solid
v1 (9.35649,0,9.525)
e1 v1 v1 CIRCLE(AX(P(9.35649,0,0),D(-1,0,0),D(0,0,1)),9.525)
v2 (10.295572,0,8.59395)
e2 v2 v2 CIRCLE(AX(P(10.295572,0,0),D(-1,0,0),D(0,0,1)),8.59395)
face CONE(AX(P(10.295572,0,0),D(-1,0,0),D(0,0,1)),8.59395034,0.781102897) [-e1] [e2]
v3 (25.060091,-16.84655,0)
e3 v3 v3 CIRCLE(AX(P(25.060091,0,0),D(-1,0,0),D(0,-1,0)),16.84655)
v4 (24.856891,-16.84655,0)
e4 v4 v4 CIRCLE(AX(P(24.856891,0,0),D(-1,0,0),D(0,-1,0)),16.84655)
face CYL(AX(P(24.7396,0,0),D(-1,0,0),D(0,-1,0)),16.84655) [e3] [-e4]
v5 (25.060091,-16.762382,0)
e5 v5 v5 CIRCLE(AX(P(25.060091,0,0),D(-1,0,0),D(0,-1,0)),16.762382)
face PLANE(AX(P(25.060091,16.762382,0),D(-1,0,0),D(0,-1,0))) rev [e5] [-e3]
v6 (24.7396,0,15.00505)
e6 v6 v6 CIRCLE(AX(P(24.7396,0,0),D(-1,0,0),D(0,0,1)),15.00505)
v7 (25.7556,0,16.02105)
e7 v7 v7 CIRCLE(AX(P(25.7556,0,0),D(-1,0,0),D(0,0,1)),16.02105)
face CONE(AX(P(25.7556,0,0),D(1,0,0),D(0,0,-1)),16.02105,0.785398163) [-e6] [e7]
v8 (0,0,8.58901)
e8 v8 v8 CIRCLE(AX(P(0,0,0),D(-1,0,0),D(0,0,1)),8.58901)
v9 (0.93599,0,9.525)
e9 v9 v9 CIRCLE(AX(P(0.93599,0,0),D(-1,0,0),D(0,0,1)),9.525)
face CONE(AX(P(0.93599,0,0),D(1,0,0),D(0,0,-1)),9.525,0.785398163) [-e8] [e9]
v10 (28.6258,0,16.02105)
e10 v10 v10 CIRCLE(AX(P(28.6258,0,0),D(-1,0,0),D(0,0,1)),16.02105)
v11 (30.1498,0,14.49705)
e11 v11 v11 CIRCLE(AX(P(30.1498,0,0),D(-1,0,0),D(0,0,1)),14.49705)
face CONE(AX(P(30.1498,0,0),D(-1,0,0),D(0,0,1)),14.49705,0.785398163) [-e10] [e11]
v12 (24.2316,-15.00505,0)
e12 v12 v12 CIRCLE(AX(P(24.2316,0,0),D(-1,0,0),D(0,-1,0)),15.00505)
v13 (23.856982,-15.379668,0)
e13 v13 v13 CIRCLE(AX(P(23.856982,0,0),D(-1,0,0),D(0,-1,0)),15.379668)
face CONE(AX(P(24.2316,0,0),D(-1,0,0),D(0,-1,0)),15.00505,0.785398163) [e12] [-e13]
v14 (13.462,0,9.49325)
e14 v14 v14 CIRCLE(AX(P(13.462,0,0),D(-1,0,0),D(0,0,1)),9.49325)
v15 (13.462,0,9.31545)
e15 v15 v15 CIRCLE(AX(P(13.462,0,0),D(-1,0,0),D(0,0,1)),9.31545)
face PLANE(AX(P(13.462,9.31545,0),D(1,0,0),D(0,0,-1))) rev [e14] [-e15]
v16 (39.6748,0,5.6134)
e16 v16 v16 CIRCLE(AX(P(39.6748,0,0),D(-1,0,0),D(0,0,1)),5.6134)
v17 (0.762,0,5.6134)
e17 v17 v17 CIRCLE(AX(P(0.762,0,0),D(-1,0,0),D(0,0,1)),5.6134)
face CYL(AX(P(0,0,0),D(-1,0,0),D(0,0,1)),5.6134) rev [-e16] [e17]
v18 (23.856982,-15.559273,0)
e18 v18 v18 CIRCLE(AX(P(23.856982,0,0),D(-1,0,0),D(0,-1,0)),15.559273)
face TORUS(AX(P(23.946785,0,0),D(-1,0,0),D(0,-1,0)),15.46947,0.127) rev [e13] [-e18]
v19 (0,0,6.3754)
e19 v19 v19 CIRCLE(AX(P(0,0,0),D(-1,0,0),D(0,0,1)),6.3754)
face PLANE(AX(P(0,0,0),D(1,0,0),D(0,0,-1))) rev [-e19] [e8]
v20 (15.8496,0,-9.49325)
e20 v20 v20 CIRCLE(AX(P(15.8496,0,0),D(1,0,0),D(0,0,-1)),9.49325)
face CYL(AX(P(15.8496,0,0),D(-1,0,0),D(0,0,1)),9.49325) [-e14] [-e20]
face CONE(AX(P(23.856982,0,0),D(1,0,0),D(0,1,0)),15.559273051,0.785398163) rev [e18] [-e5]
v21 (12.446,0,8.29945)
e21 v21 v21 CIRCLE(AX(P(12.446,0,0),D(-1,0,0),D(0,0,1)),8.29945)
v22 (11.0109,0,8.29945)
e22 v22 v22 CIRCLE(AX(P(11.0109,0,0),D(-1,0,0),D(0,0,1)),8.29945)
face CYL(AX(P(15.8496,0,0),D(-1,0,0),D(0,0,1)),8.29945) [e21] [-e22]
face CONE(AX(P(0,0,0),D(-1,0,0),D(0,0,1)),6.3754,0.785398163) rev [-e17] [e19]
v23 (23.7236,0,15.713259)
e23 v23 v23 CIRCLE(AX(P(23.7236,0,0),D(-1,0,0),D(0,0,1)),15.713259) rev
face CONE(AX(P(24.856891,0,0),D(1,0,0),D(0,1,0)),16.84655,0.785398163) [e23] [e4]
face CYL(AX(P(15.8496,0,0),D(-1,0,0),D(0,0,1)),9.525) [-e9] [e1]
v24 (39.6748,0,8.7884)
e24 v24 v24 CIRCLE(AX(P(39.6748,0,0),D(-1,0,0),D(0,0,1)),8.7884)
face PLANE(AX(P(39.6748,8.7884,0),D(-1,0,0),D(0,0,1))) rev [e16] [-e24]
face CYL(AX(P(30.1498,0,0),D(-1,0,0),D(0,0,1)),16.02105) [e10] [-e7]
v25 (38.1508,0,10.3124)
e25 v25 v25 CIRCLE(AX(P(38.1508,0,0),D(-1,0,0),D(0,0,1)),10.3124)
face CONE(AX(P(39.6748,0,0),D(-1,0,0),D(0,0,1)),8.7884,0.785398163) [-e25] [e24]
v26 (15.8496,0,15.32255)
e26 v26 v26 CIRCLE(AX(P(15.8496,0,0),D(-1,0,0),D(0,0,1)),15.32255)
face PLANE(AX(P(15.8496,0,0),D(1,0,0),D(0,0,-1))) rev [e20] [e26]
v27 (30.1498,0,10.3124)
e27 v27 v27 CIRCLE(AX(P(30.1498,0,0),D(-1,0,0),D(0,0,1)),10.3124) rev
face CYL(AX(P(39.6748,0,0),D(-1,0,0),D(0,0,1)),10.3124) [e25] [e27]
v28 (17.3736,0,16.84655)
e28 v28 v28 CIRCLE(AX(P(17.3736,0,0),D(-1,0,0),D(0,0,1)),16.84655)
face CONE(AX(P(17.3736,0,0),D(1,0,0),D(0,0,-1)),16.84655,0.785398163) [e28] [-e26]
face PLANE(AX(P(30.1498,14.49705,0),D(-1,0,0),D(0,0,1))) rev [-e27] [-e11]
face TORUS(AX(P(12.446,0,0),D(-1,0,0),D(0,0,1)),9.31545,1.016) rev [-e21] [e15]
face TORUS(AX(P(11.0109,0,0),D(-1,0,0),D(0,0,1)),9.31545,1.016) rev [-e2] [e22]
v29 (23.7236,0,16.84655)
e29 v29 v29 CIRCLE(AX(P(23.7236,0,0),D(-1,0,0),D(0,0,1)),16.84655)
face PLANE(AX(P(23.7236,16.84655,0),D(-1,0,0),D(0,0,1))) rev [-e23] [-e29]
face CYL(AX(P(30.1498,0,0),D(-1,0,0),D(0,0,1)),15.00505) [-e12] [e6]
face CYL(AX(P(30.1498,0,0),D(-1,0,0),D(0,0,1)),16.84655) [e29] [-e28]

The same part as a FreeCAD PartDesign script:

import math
import FreeCAD as App
import Part
import Sketcher
Q = App.Units.Quantity

doc = App.newDocument("Part")
params = doc.addObject("Spreadsheet::Sheet", "Params")
for row, (alias, value) in enumerate([
    ("sketch1_radius", "0.04 in"),
    ("sketch1_width", "0.624 in"),
    ("sketch1_width2", "0.094 in"),
    ("sketch1_height", "0.007 in"),
    ("revolution_angle", "360 deg"),
    ("sketch2_width", "0.04 in"),
    ("sketch2_width2", "0.25 in"),
    ("sketch2_width3", "0.563 in"),
    ("sketch2_width4", "0.113 in"),
    ("revolution2_angle", "360 deg"),
    ("sketch3_width", "0.375 in"),
    ("sketch3_width2", "0.315 in"),
    ("sketch3_height", "0.406 in"),
    ("revolution3_angle", "360 deg"),
    ("sketch4_diameter", "0.442 in"),
    ("hole_diameter", "0.442 in"),
    ("hole_depth", "1.562 in"),
    ("hole_csink_diameter", "0.502 in"),
    ("sketch5_radius", "0.005 in"),
    ("sketch5_width", "0.04 in"),
    ("sketch5_width2", "0.02 in"),
    ("sketch5_height", "0.01 in"),
    ("sketch5_width3", "0.008 in"),
    ("revolution4_angle", "360 deg"),
], start=1):
    params.set(f"A{row}", alias)
    params.set(f"B{row}", "=" + value)
    params.setAlias(f"B{row}", alias)

body = doc.addObject("PartDesign::Body", "Body")

# Sketch on XY plane
sketch1 = body.newObject("Sketcher::SketchObject", "Sketch")
sketch1.AttachmentSupport = (doc.getObject("XY_Plane"), [""])
sketch1.MapMode = "FlatFace"
sketch1.addGeometry([
    Part.LineSegment(App.Vector(0, 8.59, 0), App.Vector(0, 0, 0)),  # 0
    Part.LineSegment(App.Vector(0, 0, 0), App.Vector(15.85, 0, 0)),  # 1
    Part.LineSegment(App.Vector(15.85, 0, 0), App.Vector(15.85, 9.49, 0)),  # 2
    Part.LineSegment(App.Vector(15.85, 9.49, 0), App.Vector(13.46, 9.49, 0)),  # 3
    Part.LineSegment(App.Vector(13.46, 9.49, 0), App.Vector(13.46, 9.32, 0)),  # 4
    Part.ArcOfCircle(Part.Circle(App.Vector(12.45, 9.32, 0), App.Vector(0, 0, 1), 1.02), math.radians(-90), math.radians(0)),  # 5
    Part.LineSegment(App.Vector(12.45, 8.3, 0), App.Vector(11.01, 8.3, 0)),  # 6
    Part.ArcOfCircle(Part.Circle(App.Vector(11.01, 9.32, 0), App.Vector(0, 0, 1), 1.02), math.radians(-135), math.radians(-90)),  # 7
    Part.LineSegment(App.Vector(10.3, 8.59, 0), App.Vector(9.36, 9.53, 0)),  # 8
    Part.LineSegment(App.Vector(9.36, 9.53, 0), App.Vector(0.94, 9.53, 0)),  # 9
    Part.LineSegment(App.Vector(0.94, 9.53, 0), App.Vector(0, 8.59, 0)),  # 10
], False)
sketch1.addConstraint([
    Sketcher.Constraint("Coincident", 0, 2, 1, 1),
    Sketcher.Constraint("Coincident", 1, 2, 2, 1),
    Sketcher.Constraint("Coincident", 2, 2, 3, 1),
    Sketcher.Constraint("Coincident", 3, 2, 4, 1),
    Sketcher.Constraint("Tangent", 4, 2, 5, 2),
    Sketcher.Constraint("Tangent", 5, 1, 6, 1),
    Sketcher.Constraint("Tangent", 6, 2, 7, 2),
    Sketcher.Constraint("Tangent", 7, 1, 8, 1),
    Sketcher.Constraint("Coincident", 8, 2, 9, 1),
    Sketcher.Constraint("Coincident", 9, 2, 10, 1),
    Sketcher.Constraint("Coincident", 10, 2, 0, 1),
    Sketcher.Constraint("Vertical", 0),
    Sketcher.Constraint("Horizontal", 1),
    Sketcher.Constraint("Vertical", 2),
    Sketcher.Constraint("Horizontal", 3),
    Sketcher.Constraint("Vertical", 4),
    Sketcher.Constraint("Horizontal", 6),
    Sketcher.Constraint("Horizontal", 9),
    Sketcher.Constraint("Coincident", 0, 2, -1, 1),
    Sketcher.Constraint("Equal", 5, 7),
    Sketcher.Constraint("Radius", 5, Q("0.04 in")),
    Sketcher.Constraint("Angle", 10, Q("-135 deg")),
    Sketcher.Constraint("DistanceX", 1, 1, 1, 2, Q("0.624 in")),
    Sketcher.Constraint("DistanceX", 3, 2, 3, 1, Q("0.094 in")),
    Sketcher.Constraint("DistanceY", 4, 2, 4, 1, Q("0.007 in")),
    Sketcher.Constraint("DistanceX", 6, 2, 6, 1, Q("0.0565 in")),
    Sketcher.Constraint("DistanceY", -1, 1, 8, 2, Q("0.375 in")),
    Sketcher.Constraint("DistanceX", 9, 2, 9, 1, Q("8.4205 mm")),
    Sketcher.Constraint("DistanceY", 6, 2, 10, 2, Q("0.0114 in")),
    Sketcher.Constraint("DistanceY", 0, 2, 0, 1, Q("8.58901 mm")),
])
sketch1.setExpression("Constraints[20]", "Params.sketch1_radius")
sketch1.setExpression("Constraints[22]", "Params.sketch1_width")
sketch1.setExpression("Constraints[23]", "Params.sketch1_width2")
sketch1.setExpression("Constraints[24]", "Params.sketch1_height")
revolution = body.newObject("PartDesign::Revolution", "Revolution")
revolution.Profile = sketch1
revolution.ReferenceAxis = (sketch1, ["H_Axis"])
revolution.setExpression("Angle", "Params.revolution_angle")

# Sketch on XY plane
sketch2 = body.newObject("Sketcher::SketchObject", "Sketch001")
sketch2.AttachmentSupport = (doc.getObject("XY_Plane"), [""])
sketch2.MapMode = "FlatFace"
sketch2.addGeometry([
    Part.LineSegment(App.Vector(15.8, 15.3, 0), App.Vector(15.8, 0, 0)),  # 0
    Part.LineSegment(App.Vector(15.8, 0, 0), App.Vector(30.1, 0, 0)),  # 1
    Part.LineSegment(App.Vector(30.1, 0, 0), App.Vector(30.1, 14.5, 0)),  # 2
    Part.LineSegment(App.Vector(30.1, 14.5, 0), App.Vector(28.6, 16, 0)),  # 3
    Part.LineSegment(App.Vector(28.6, 16, 0), App.Vector(25.8, 16, 0)),  # 4
    Part.LineSegment(App.Vector(25.8, 16, 0), App.Vector(24.7, 15, 0)),  # 5
    Part.LineSegment(App.Vector(24.7, 15, 0), App.Vector(23.7, 15, 0)),  # 6
    Part.LineSegment(App.Vector(23.7, 15, 0), App.Vector(23.7, 16.8, 0)),  # 7
    Part.LineSegment(App.Vector(23.7, 16.8, 0), App.Vector(17.4, 16.8, 0)),  # 8
    Part.LineSegment(App.Vector(17.4, 16.8, 0), App.Vector(15.8, 15.3, 0)),  # 9
], False)
sketch2.addConstraint([
    Sketcher.Constraint("Coincident", 0, 2, 1, 1),
    Sketcher.Constraint("Coincident", 1, 2, 2, 1),
    Sketcher.Constraint("Coincident", 2, 2, 3, 1),
    Sketcher.Constraint("Coincident", 3, 2, 4, 1),
    Sketcher.Constraint("Coincident", 4, 2, 5, 1),
    Sketcher.Constraint("Coincident", 5, 2, 6, 1),
    Sketcher.Constraint("Coincident", 6, 2, 7, 1),
    Sketcher.Constraint("Coincident", 7, 2, 8, 1),
    Sketcher.Constraint("Coincident", 8, 2, 9, 1),
    Sketcher.Constraint("Coincident", 9, 2, 0, 1),
    Sketcher.Constraint("Vertical", 0),
    Sketcher.Constraint("Horizontal", 1),
    Sketcher.Constraint("Vertical", 2),
    Sketcher.Constraint("Horizontal", 4),
    Sketcher.Constraint("Horizontal", 6),
    Sketcher.Constraint("Vertical", 7),
    Sketcher.Constraint("Horizontal", 8),
    Sketcher.Constraint("PointOnObject", 0, 2, -1),
    Sketcher.Constraint("Perpendicular", 3, 5),
    Sketcher.Constraint("Parallel", 5, 9),
    Sketcher.Constraint("Equal", 3, 9),
    Sketcher.Constraint("Angle", 3, Q("135 deg")),
    Sketcher.Constraint("DistanceX", 6, 2, 6, 1, Q("0.04 in")),
    Sketcher.Constraint("DistanceX", 8, 2, 8, 1, Q("0.25 in")),
    Sketcher.Constraint("DistanceX", 1, 1, 1, 2, Q("0.563 in")),
    Sketcher.Constraint("DistanceX", 4, 2, 4, 1, Q("0.113 in")),
    Sketcher.Constraint("DistanceX", 3, 2, 2, 2, Q("0.06 in")),
    Sketcher.Constraint("DistanceY", 7, 1, 7, 2, Q("0.0725 in")),
    Sketcher.Constraint("DistanceX", -1, 1, 0, 2, Q("0.624 in")),
    Sketcher.Constraint("DistanceY", 0, 2, 0, 1, Q("15.32255 mm")),
])
sketch2.setExpression("Constraints[22]", "Params.sketch2_width")
sketch2.setExpression("Constraints[23]", "Params.sketch2_width2")
sketch2.setExpression("Constraints[24]", "Params.sketch2_width3")
sketch2.setExpression("Constraints[25]", "Params.sketch2_width4")
revolution2 = body.newObject("PartDesign::Revolution", "Revolution001")
revolution2.Profile = sketch2
revolution2.ReferenceAxis = (sketch2, ["H_Axis"])
revolution2.setExpression("Angle", "Params.revolution2_angle")

# Sketch on XY plane
sketch3 = body.newObject("Sketcher::SketchObject", "Sketch002")
sketch3.AttachmentSupport = (doc.getObject("XY_Plane"), [""])
sketch3.MapMode = "FlatFace"
sketch3.addGeometry([
    Part.LineSegment(App.Vector(30.1, 10.3, 0), App.Vector(30.1, 0, 0)),  # 0
    Part.LineSegment(App.Vector(30.1, 0, 0), App.Vector(39.7, 0, 0)),  # 1
    Part.LineSegment(App.Vector(39.7, 0, 0), App.Vector(39.7, 8.8, 0)),  # 2
    Part.LineSegment(App.Vector(39.7, 8.8, 0), App.Vector(38.2, 10.3, 0)),  # 3
    Part.LineSegment(App.Vector(38.2, 10.3, 0), App.Vector(30.1, 10.3, 0)),  # 4
], False)
sketch3.addConstraint([
    Sketcher.Constraint("Coincident", 0, 2, 1, 1),
    Sketcher.Constraint("Coincident", 1, 2, 2, 1),
    Sketcher.Constraint("Coincident", 2, 2, 3, 1),
    Sketcher.Constraint("Coincident", 3, 2, 4, 1),
    Sketcher.Constraint("Coincident", 4, 2, 0, 1),
    Sketcher.Constraint("Vertical", 0),
    Sketcher.Constraint("Horizontal", 1),
    Sketcher.Constraint("Vertical", 2),
    Sketcher.Constraint("Horizontal", 4),
    Sketcher.Constraint("PointOnObject", 0, 2, -1),
    Sketcher.Constraint("Angle", 3, Q("135 deg")),
    Sketcher.Constraint("DistanceX", 1, 1, 1, 2, Q("0.375 in")),
    Sketcher.Constraint("DistanceX", 4, 2, 4, 1, Q("0.315 in")),
    Sketcher.Constraint("DistanceY", 0, 2, 0, 1, Q("0.406 in")),
    Sketcher.Constraint("DistanceX", -1, 1, 0, 2, Q("1.187 in")),
])
sketch3.setExpression("Constraints[11]", "Params.sketch3_width")
sketch3.setExpression("Constraints[12]", "Params.sketch3_width2")
sketch3.setExpression("Constraints[13]", "Params.sketch3_height")
revolution3 = body.newObject("PartDesign::Revolution", "Revolution002")
revolution3.Profile = sketch3
revolution3.ReferenceAxis = (sketch3, ["H_Axis"])
revolution3.setExpression("Angle", "Params.revolution3_angle")

# Sketch on YZ plane
sketch4 = body.newObject("Sketcher::SketchObject", "Sketch003")
sketch4.AttachmentSupport = (doc.getObject("YZ_Plane"), [""])
sketch4.MapMode = "FlatFace"
sketch4.addGeometry(Part.Circle(App.Vector(0, 0, 0), App.Vector(0, 0, 1), 6), False)
sketch4.addConstraint([
    Sketcher.Constraint("Coincident", 0, 3, -1, 1),
    Sketcher.Constraint("Diameter", 0, Q("0.442 in")),
])
sketch4.setExpression("Constraints[1]", "Params.sketch4_diameter")
doc.recompute()
hole = body.newObject("PartDesign::Hole", "Hole")
hole.Profile = sketch4
hole.ThreadType = "None"
hole.setExpression("Diameter", "Params.hole_diameter")
hole.DepthType = "Dimension"
hole.setExpression("Depth", "Params.hole_depth")
hole.DrillPoint = "Flat"
hole.HoleCutType = "Countersink"
hole.setExpression("HoleCutDiameter", "Params.hole_csink_diameter")
hole.HoleCutCountersinkAngle = 90
hole.Reversed = True

# Sketch on XY plane
sketch5 = body.newObject("Sketcher::SketchObject", "Sketch004")
sketch5.AttachmentSupport = (doc.getObject("XY_Plane"), [""])
sketch5.MapMode = "FlatFace"
sketch5.addGeometry([
    Part.LineSegment(App.Vector(23.72, 14.75, 0), App.Vector(24.74, 14.75, 0)),  # 0
    Part.LineSegment(App.Vector(24.74, 14.75, 0), App.Vector(24.74, 15.01, 0)),  # 1
    Part.LineSegment(App.Vector(24.74, 15.01, 0), App.Vector(24.23, 15.01, 0)),  # 2
    Part.LineSegment(App.Vector(24.23, 15.01, 0), App.Vector(23.86, 15.38, 0)),  # 3
    Part.ArcOfCircle(Part.Circle(App.Vector(23.95, 15.47, 0), App.Vector(0, 0, 1), 0.13), math.radians(135), math.radians(225)),  # 4
    Part.LineSegment(App.Vector(23.86, 15.56, 0), App.Vector(25.06, 16.76, 0)),  # 5
    Part.LineSegment(App.Vector(25.06, 16.76, 0), App.Vector(25.06, 16.85, 0)),  # 6
    Part.LineSegment(App.Vector(25.06, 16.85, 0), App.Vector(24.86, 16.85, 0)),  # 7
    Part.LineSegment(App.Vector(24.86, 16.85, 0), App.Vector(23.72, 15.71, 0)),  # 8
    Part.LineSegment(App.Vector(23.72, 15.71, 0), App.Vector(23.72, 14.75, 0)),  # 9
], False)
sketch5.addConstraint([
    Sketcher.Constraint("Coincident", 0, 2, 1, 1),
    Sketcher.Constraint("Coincident", 1, 2, 2, 1),
    Sketcher.Constraint("Coincident", 2, 2, 3, 1),
    Sketcher.Constraint("Tangent", 3, 2, 4, 2),
    Sketcher.Constraint("Tangent", 4, 1, 5, 1),
    Sketcher.Constraint("Coincident", 5, 2, 6, 1),
    Sketcher.Constraint("Coincident", 6, 2, 7, 1),
    Sketcher.Constraint("Coincident", 7, 2, 8, 1),
    Sketcher.Constraint("Coincident", 8, 2, 9, 1),
    Sketcher.Constraint("Coincident", 9, 2, 0, 1),
    Sketcher.Constraint("Horizontal", 0),
    Sketcher.Constraint("Vertical", 1),
    Sketcher.Constraint("Horizontal", 2),
    Sketcher.Constraint("Vertical", 6),
    Sketcher.Constraint("Horizontal", 7),
    Sketcher.Constraint("Vertical", 9),
    Sketcher.Constraint("Perpendicular", 3, 5),
    Sketcher.Constraint("Parallel", 5, 8),
    Sketcher.Constraint("Vertical", 3, 2, 4, 1),
    Sketcher.Constraint("Radius", 4, Q("0.005 in")),
    Sketcher.Constraint("DistanceX", 0, 1, 0, 2, Q("0.04 in")),
    Sketcher.Constraint("DistanceX", 2, 2, 2, 1, Q("0.02 in")),
    Sketcher.Constraint("DistanceY", 1, 1, 1, 2, Q("0.01 in")),
    Sketcher.Constraint("DistanceX", 7, 2, 7, 1, Q("0.008 in")),
    Sketcher.Constraint("DistanceX", -1, 1, 0, 2, Q("0.974 in")),
    Sketcher.Constraint("DistanceY", 1, 2, 6, 2, Q("0.0725 in")),
    Sketcher.Constraint("DistanceY", 6, 1, 6, 2, Q("0.084168 mm")),
    Sketcher.Constraint("DistanceY", 9, 2, 9, 1, Q("0.962209 mm")),
    Sketcher.Constraint("DistanceY", -1, 1, 4, 3, Q("15.46947 mm")),
])
sketch5.setExpression("Constraints[19]", "Params.sketch5_radius")
sketch5.setExpression("Constraints[20]", "Params.sketch5_width")
sketch5.setExpression("Constraints[21]", "Params.sketch5_width2")
sketch5.setExpression("Constraints[22]", "Params.sketch5_height")
sketch5.setExpression("Constraints[23]", "Params.sketch5_width3")
revolution4 = body.newObject("PartDesign::Revolution", "Revolution003")
revolution4.Profile = sketch5
revolution4.ReferenceAxis = (sketch5, ["H_Axis"])
revolution4.setExpression("Angle", "Params.revolution4_angle")

doc.recompute()
